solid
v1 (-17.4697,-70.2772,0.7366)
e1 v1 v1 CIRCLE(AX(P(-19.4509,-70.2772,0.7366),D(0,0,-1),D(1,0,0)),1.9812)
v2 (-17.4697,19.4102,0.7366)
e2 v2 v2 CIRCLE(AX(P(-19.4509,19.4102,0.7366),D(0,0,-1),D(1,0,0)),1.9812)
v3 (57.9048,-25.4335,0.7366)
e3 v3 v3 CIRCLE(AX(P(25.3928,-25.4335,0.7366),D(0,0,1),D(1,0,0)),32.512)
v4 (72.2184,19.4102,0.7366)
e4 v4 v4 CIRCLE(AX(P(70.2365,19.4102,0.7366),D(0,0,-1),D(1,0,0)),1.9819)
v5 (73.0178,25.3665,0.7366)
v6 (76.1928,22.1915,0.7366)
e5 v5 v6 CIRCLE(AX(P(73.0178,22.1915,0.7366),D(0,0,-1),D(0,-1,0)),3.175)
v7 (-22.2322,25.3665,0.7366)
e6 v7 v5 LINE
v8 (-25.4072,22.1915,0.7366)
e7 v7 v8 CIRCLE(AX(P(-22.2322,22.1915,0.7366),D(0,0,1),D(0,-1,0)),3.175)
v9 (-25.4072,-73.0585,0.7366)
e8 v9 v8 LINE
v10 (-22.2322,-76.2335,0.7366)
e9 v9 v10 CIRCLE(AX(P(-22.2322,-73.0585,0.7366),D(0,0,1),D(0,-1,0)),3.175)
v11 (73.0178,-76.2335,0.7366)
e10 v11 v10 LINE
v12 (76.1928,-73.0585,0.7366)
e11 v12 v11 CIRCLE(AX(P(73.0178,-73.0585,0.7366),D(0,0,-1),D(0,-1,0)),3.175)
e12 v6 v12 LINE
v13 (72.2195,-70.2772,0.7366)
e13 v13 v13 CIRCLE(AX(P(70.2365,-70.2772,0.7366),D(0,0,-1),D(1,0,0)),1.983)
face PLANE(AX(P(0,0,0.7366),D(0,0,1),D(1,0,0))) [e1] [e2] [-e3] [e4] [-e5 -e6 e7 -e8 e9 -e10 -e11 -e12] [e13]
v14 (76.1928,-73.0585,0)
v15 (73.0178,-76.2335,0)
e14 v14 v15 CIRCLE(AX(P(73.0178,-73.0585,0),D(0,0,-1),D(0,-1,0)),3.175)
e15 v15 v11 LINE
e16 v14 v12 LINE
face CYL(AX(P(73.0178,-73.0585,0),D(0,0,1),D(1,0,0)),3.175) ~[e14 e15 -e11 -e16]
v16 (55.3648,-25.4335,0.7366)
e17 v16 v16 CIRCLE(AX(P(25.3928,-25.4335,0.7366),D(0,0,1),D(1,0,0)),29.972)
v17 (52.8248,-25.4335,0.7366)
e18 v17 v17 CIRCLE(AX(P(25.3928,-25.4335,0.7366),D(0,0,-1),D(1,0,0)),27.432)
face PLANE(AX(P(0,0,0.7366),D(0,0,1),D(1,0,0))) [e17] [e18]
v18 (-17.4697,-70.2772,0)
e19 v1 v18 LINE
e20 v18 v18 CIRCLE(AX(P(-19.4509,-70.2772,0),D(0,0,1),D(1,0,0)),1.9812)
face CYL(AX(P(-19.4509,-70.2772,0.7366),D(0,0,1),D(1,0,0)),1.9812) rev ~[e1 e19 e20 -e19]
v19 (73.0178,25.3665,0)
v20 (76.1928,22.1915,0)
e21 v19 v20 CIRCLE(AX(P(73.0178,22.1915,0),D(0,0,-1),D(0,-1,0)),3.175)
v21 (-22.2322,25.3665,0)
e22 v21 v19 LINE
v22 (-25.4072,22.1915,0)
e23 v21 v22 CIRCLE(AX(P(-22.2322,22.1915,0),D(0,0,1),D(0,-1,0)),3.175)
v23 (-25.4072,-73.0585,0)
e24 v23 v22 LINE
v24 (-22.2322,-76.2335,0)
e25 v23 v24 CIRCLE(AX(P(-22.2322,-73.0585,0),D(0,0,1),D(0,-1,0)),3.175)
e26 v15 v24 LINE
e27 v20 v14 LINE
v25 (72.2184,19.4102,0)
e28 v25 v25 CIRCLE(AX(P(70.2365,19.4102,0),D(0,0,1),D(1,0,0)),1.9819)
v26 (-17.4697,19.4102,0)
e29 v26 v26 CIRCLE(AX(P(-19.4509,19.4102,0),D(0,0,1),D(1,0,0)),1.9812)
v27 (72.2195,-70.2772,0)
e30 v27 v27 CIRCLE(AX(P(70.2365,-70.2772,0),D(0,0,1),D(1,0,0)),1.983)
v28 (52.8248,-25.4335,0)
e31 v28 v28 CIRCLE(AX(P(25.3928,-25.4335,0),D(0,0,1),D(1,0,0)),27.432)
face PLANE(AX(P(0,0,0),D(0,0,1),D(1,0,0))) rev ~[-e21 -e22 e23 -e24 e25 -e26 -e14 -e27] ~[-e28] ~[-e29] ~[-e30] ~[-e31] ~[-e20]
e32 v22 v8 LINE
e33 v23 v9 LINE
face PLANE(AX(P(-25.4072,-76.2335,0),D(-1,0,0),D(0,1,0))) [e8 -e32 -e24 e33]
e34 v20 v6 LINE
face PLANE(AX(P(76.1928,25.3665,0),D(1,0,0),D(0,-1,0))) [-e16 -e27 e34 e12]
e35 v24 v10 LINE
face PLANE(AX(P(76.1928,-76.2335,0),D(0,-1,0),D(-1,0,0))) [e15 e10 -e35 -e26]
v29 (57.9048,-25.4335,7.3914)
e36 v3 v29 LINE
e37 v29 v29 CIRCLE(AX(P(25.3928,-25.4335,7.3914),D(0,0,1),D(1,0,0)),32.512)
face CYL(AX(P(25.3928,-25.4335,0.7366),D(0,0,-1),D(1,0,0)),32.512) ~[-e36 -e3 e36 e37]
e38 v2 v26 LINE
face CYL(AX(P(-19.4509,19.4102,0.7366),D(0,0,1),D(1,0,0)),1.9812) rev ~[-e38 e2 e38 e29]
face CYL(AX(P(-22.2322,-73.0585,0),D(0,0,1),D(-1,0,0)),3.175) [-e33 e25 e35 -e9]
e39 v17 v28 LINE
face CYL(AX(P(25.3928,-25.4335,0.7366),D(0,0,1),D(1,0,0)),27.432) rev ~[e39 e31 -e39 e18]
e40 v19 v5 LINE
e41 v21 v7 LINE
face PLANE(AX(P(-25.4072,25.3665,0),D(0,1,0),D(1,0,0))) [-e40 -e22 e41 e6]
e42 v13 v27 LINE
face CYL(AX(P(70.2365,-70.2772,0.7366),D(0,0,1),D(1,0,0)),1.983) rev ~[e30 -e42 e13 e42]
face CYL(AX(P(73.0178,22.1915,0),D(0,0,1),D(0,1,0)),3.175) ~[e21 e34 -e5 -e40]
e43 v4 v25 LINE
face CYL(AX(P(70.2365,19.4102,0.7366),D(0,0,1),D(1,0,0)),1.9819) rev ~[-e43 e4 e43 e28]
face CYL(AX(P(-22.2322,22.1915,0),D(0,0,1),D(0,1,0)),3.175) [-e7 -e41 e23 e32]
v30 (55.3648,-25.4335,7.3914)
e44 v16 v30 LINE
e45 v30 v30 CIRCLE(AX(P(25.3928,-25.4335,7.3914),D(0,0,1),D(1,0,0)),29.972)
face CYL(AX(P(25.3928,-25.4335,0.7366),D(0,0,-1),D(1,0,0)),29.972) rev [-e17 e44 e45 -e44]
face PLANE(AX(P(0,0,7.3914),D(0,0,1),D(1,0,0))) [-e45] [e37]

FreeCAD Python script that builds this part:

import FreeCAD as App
import Part
import Sketcher

V = App.Vector
Q = App.Units.Quantity


def edges_at(feature, points):
    """Names of the edges that pass closest to the given points."""
    edges = feature.Shape.Edges
    near = lambda p: min(range(len(edges)), key=lambda i: edges[i].distToShape(Part.Vertex(*p))[0])
    return sorted({f"Edge{near(p) + 1}" for p in points})

doc = App.newDocument("Part")
body = doc.addObject("PartDesign::Body", "Body")

# Sketch on XY plane
sketch1 = body.newObject("Sketcher::SketchObject", "Sketch")
sketch1.AttachmentSupport = (doc.getObject("XY_Plane"), [""])
sketch1.MapMode = "FlatFace"
sketch1.addGeometry([
    Part.LineSegment(V(76, 25, 0), V(-25, 25, 0)),
    Part.LineSegment(V(-25, 25, 0), V(-25, -76, 0)),
    Part.LineSegment(V(-25, -76, 0), V(76, -76, 0)),
    Part.LineSegment(V(76, -76, 0), V(76, 25, 0)),
], False)
sketch1.addConstraint([
    Sketcher.Constraint("Coincident", 0, 2, 1, 1),
    Sketcher.Constraint("Coincident", 1, 2, 2, 1),
    Sketcher.Constraint("Coincident", 2, 2, 3, 1),
    Sketcher.Constraint("Coincident", 3, 2, 0, 1),
    Sketcher.Constraint("Horizontal", 0),
    Sketcher.Constraint("Vertical", 1),
    Sketcher.Constraint("Horizontal", 2),
    Sketcher.Constraint("Vertical", 3),
    Sketcher.Constraint("Equal", 2, 1),
    Sketcher.Constraint("DistanceX", 0, 2, 0, 1, Q("4 in")),
    Sketcher.Constraint("DistanceX", 0, 2, -1, 1, Q("25.4072 mm")),
    Sketcher.Constraint("DistanceY", -1, 1, 0, 2, Q("25.3665 mm")),
])
pad1 = body.newObject("PartDesign::Pad", "Pad")
pad1.Profile = sketch1
pad1.Length = Q("0.029 in")

# Sketch on XY plane
sketch2 = body.newObject("Sketcher::SketchObject", "Sketch001")
sketch2.AttachmentSupport = (doc.getObject("XY_Plane"), [""])
sketch2.MapMode = "FlatFace"
sketch2.AttachmentOffset = App.Placement(V(0, 0, 0.029 * 25.4), App.Rotation())
sketch2.addGeometry(Part.Circle(V(25, -25, 0), V(0, 0, 1), 27), False)
sketch2.addConstraint([
    Sketcher.Constraint("Diameter", 0, Q("2.16 in")),
    Sketcher.Constraint("DistanceX", -1, 1, 0, 3, Q("25.3928 mm")),
    Sketcher.Constraint("DistanceY", 0, 3, -1, 1, Q("25.4335 mm")),
])
pocket1 = body.newObject("PartDesign::Pocket", "Pocket")
pocket1.Profile = sketch2
pocket1.Length = Q("0.029 in")

# Sketch on XY plane
sketch3 = body.newObject("Sketcher::SketchObject", "Sketch002")
sketch3.AttachmentSupport = (doc.getObject("XY_Plane"), [""])
sketch3.MapMode = "FlatFace"
sketch3.AttachmentOffset = App.Placement(V(0, 0, 0.029 * 25.4), App.Rotation())
sketch3.addGeometry(Part.Circle(V(-19.5, 19.4, 0), V(0, 0, 1), 2), False)
sketch3.addConstraint([
    Sketcher.Constraint("Diameter", 0, Q("0.156 in")),
    Sketcher.Constraint("DistanceX", 0, 3, -1, 1, Q("19.451 mm")),
    Sketcher.Constraint("DistanceY", -1, 1, 0, 3, Q("19.4102 mm")),
])
pocket2 = body.newObject("PartDesign::Pocket", "Pocket001")
pocket2.Profile = sketch3
pocket2.Length = Q("0.029 in")

# Sketch on XY plane
sketch4 = body.newObject("Sketcher::SketchObject", "Sketch003")
sketch4.AttachmentSupport = (doc.getObject("XY_Plane"), [""])
sketch4.MapMode = "FlatFace"
sketch4.AttachmentOffset = App.Placement(V(0, 0, 0.029 * 25.4), App.Rotation())
sketch4.addGeometry([
    Part.Circle(V(-19.5, -70.3, 0), V(0, 0, 1), 2),
    Part.Circle(V(70.2, 19.4, 0), V(0, 0, 1), 2),
    Part.Circle(V(70.2, -70.3, 0), V(0, 0, 1), 2),
], False)
sketch4.addConstraint([
    Sketcher.Constraint("Horizontal", 0, 3, 2, 3),
    Sketcher.Constraint("Vertical", 1, 3, 2, 3),
    Sketcher.Constraint("Diameter", 0, Q("0.156 in")),
    Sketcher.Constraint("Diameter", 1, Q("3.9638 mm")),
    Sketcher.Constraint("Diameter", 2, Q("3.966 mm")),
    Sketcher.Constraint("DistanceX", 0, 3, 1, 3, Q("3.531 in")),
    Sketcher.Constraint("DistanceY", 0, 3, 1, 3, Q("3.531 in")),
    Sketcher.Constraint("DistanceX", 0, 3, -1, 1, Q("19.451 mm")),
    Sketcher.Constraint("DistanceY", 0, 3, -1, 1, Q("70.2772 mm")),
])
pocket3 = body.newObject("PartDesign::Pocket", "Pocket002")
pocket3.Profile = sketch4
pocket3.Length = Q("0.029 in")

# Sketch on XY plane
sketch5 = body.newObject("Sketcher::SketchObject", "Sketch004")
sketch5.AttachmentSupport = (doc.getObject("XY_Plane"), [""])
sketch5.MapMode = "FlatFace"
sketch5.AttachmentOffset = App.Placement(V(0, 0, 0.029 * 25.4), App.Rotation())
sketch5.addGeometry([
    Part.Circle(V(25, -25, 0), V(0, 0, 1), 33),
    Part.Circle(V(25, -25, 0), V(0, 0, 1), 30),
], False)
sketch5.addConstraint([
    Sketcher.Constraint("Coincident", 1, 3, 0, 3),
    Sketcher.Constraint("Diameter", 0, Q("2.56 in")),
    Sketcher.Constraint("Diameter", 1, Q("2.36 in")),
    Sketcher.Constraint("DistanceX", -1, 1, 0, 3, Q("25.3928 mm")),
    Sketcher.Constraint("DistanceY", 0, 3, -1, 1, Q("25.4335 mm")),
])
pad2 = body.newObject("PartDesign::Pad", "Pad001")
pad2.Profile = sketch5
pad2.Length = Q("0.262 in")
doc.recompute()

fillet = body.newObject("PartDesign::Fillet", "Fillet")
fillet.Base = (pad2, edges_at(pad2, [
    (-25.407, 25.366, 0.368),
    (76.193, 25.366, 0.368),
    (76.193, -76.234, 0.368),
    (-25.407, -76.234, 0.368),
]))
fillet.Radius = Q("0.125 in")

doc.recompute()
